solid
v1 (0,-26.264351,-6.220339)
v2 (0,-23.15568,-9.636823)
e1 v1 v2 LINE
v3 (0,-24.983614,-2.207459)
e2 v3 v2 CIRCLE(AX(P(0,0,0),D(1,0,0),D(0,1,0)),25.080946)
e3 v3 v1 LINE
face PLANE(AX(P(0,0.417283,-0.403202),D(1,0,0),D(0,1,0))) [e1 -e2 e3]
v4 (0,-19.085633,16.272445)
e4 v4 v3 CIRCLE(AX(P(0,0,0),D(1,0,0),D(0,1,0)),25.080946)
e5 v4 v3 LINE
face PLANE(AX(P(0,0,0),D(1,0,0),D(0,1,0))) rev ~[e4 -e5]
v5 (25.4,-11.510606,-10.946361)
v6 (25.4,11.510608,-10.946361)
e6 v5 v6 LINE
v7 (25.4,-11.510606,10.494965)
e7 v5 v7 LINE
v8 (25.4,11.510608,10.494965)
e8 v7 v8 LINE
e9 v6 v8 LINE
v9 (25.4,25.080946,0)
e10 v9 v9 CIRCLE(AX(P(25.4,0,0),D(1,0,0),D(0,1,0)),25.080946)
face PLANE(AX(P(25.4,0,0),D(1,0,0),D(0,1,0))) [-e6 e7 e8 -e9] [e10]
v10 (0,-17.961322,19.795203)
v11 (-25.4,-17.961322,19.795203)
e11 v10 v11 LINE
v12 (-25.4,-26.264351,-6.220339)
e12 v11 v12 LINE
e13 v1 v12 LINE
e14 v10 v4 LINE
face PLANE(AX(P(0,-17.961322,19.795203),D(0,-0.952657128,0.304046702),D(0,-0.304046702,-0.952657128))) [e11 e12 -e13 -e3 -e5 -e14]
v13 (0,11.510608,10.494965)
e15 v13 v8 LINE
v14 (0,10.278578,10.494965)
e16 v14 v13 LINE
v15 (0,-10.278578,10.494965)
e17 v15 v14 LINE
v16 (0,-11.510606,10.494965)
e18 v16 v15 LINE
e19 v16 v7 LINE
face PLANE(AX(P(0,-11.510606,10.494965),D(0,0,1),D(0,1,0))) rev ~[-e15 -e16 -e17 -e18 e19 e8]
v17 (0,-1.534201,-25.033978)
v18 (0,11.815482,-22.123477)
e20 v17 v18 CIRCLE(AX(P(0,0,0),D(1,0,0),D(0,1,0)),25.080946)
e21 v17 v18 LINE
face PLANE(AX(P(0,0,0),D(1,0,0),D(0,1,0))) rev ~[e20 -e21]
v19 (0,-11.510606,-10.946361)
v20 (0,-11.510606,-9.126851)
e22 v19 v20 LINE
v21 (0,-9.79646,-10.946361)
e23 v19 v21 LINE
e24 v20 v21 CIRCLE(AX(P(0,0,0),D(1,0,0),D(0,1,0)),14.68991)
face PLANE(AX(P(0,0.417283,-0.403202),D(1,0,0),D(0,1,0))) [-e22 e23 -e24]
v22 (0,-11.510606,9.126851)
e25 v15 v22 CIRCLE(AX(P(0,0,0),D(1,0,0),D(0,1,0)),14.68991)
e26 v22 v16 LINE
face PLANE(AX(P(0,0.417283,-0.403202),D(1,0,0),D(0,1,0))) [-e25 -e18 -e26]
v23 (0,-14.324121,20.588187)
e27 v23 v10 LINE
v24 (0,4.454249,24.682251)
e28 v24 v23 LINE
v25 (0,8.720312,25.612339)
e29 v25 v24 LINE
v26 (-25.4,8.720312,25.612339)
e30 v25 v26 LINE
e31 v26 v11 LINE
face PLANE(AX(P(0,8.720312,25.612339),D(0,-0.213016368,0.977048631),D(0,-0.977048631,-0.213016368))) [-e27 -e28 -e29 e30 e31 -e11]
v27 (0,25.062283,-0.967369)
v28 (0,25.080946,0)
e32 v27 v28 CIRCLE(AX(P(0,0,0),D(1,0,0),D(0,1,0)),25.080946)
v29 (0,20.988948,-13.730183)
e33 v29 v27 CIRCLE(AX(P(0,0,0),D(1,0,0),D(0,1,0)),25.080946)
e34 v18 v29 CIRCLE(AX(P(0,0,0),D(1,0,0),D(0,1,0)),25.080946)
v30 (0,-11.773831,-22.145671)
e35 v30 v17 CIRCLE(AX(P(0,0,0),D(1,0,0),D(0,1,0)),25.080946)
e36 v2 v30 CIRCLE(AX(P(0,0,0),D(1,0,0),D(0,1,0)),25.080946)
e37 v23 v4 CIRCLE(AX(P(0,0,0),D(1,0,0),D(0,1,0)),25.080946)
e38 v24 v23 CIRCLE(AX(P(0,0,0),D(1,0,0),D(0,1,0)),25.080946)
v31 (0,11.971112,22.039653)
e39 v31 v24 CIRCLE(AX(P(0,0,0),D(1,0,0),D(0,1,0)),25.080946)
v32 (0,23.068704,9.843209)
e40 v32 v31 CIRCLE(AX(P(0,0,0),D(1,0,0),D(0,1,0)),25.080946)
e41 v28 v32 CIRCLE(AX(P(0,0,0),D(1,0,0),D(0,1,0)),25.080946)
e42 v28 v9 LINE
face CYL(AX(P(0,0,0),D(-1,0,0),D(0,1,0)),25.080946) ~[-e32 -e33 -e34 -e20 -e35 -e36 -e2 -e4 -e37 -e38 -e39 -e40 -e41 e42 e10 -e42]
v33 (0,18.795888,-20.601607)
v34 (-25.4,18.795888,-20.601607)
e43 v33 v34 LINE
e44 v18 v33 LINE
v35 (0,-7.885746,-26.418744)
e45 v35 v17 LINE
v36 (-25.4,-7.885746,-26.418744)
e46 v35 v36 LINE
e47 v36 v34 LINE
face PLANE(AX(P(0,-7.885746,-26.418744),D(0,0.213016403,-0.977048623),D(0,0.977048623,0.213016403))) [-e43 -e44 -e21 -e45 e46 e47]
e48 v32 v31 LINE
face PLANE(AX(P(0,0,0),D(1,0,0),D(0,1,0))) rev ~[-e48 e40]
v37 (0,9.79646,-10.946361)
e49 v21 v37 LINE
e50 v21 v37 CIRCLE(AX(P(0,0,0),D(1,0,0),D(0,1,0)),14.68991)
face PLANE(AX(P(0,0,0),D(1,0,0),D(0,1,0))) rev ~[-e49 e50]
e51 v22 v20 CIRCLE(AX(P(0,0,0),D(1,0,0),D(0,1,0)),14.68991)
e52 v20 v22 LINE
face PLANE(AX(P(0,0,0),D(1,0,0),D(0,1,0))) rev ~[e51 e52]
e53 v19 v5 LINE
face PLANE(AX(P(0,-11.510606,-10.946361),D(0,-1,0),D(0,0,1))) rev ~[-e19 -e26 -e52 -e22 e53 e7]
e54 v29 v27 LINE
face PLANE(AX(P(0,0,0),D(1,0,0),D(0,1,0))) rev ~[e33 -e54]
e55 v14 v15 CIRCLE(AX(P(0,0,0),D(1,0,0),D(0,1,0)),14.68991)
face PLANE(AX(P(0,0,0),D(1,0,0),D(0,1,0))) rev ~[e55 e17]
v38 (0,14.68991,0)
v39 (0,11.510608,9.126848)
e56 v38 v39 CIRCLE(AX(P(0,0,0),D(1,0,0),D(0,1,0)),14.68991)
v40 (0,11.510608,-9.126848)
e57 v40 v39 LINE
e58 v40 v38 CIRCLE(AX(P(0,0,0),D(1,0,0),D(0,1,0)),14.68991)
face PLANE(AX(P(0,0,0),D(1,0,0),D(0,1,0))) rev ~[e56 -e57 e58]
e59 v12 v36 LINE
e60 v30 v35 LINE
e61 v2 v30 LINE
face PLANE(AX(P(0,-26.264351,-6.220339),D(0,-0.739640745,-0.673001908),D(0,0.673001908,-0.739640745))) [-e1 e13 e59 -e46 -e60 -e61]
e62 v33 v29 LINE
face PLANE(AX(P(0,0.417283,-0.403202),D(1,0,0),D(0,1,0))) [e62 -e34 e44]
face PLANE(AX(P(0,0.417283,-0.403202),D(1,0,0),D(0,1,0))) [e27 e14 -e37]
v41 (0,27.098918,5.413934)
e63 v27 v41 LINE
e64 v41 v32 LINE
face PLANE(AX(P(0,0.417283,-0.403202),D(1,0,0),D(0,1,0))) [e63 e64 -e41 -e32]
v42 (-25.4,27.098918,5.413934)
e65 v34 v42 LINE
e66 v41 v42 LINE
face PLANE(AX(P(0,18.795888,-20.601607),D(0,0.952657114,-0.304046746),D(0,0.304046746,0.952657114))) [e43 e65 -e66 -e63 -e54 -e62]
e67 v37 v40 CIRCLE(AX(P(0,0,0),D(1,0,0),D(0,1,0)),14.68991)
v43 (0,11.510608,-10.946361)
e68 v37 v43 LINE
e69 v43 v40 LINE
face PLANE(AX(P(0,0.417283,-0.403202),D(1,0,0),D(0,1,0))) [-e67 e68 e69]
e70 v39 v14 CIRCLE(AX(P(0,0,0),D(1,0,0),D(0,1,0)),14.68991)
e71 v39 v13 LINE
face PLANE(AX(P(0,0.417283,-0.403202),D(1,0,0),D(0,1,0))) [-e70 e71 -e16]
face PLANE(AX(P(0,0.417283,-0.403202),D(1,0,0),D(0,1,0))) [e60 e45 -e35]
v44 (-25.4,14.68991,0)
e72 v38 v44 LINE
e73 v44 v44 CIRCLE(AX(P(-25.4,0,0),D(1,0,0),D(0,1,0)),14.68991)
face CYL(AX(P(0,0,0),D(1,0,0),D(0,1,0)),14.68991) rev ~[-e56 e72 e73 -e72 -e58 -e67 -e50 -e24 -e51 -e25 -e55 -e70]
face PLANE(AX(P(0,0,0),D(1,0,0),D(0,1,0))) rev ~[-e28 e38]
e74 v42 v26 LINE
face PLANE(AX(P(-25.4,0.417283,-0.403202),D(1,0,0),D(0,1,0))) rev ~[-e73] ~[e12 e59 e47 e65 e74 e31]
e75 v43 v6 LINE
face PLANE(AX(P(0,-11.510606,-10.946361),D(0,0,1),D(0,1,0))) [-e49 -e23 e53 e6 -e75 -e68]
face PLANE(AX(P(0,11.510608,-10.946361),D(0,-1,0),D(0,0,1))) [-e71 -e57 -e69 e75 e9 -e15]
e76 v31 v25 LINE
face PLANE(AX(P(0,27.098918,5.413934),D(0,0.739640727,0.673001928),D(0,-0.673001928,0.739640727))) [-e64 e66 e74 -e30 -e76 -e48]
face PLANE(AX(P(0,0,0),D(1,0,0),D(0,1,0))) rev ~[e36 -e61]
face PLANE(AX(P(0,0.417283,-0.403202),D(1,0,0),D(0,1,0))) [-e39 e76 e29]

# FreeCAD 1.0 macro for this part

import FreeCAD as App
import Part
import Sketcher
from FreeCAD import Vector
Q = App.Units.Quantity

doc = App.newDocument("Part")
body = doc.addObject("PartDesign::Body", "Body")

# Sketch on YZ plane
sketch1 = doc.addObject("Sketcher::SketchObject", "Sketch")
body.addObject(sketch1)
sketch1.AttachmentSupport = (doc.YZ_Plane, [""])
sketch1.MapMode = "FlatFace"
sketch1.addGeometry(Part.Circle(Vector(0, 0, 0), Vector(0, 0, 1), 25.080946), False)
sketch1.addGeometry(Part.LineSegment(Vector(11.510608, -10.946361, 0), Vector(-11.510606, -10.946361, 0)), False)
sketch1.addGeometry(Part.LineSegment(Vector(-11.510606, -10.946361, 0), Vector(-11.510606, 10.494965, 0)), False)
sketch1.addGeometry(Part.LineSegment(Vector(-11.510606, 10.494965, 0), Vector(11.510608, 10.494965, 0)), False)
sketch1.addGeometry(Part.LineSegment(Vector(11.510608, 10.494965, 0), Vector(11.510608, -10.946361, 0)), False)
sketch1.addConstraint(Sketcher.Constraint("Coincident", 1, 2, 2, 1))
sketch1.addConstraint(Sketcher.Constraint("Coincident", 2, 2, 3, 1))
sketch1.addConstraint(Sketcher.Constraint("Coincident", 3, 2, 4, 1))
sketch1.addConstraint(Sketcher.Constraint("Coincident", 4, 2, 1, 1))
sketch1.addConstraint(Sketcher.Constraint("Horizontal", 1))
sketch1.addConstraint(Sketcher.Constraint("Vertical", 2))
sketch1.addConstraint(Sketcher.Constraint("Horizontal", 3))
sketch1.addConstraint(Sketcher.Constraint("Vertical", 4))
sketch1.addConstraint(Sketcher.Constraint("Coincident", 0, 3, -1, 1))
sketch1.addConstraint(Sketcher.Constraint("Diameter", 0, Q("50.161892 mm")))
sketch1.addConstraint(Sketcher.Constraint("DistanceX", 1, 2, 1, 1, Q("23.021214 mm")))
sketch1.addConstraint(Sketcher.Constraint("DistanceY", 2, 1, 2, 2, Q("21.441326 mm")))
sketch1.addConstraint(Sketcher.Constraint("DistanceY", 1, 2, -1, 1, Q("10.946361 mm")))
sketch1.addConstraint(Sketcher.Constraint("DistanceX", 1, 2, -1, 1, Q("11.510606 mm")))
pad1 = doc.addObject("PartDesign::Pad", "Pad")
body.addObject(pad1)
pad1.Profile = sketch1
pad1.Length = Q("1 in")

# Sketch on YZ plane
sketch2 = doc.addObject("Sketcher::SketchObject", "Sketch001")
body.addObject(sketch2)
sketch2.AttachmentSupport = (doc.YZ_Plane, [""])
sketch2.MapMode = "FlatFace"
sketch2.addGeometry(Part.LineSegment(Vector(8.720312, 25.612339, 0), Vector(-17.961322, 19.795203, 0)), False)
sketch2.addGeometry(Part.LineSegment(Vector(-17.961322, 19.795203, 0), Vector(-26.264351, -6.220339, 0)), False)
sketch2.addGeometry(Part.LineSegment(Vector(-26.264351, -6.220339, 0), Vector(-7.885746, -26.418744, 0)), False)
sketch2.addGeometry(Part.LineSegment(Vector(-7.885746, -26.418744, 0), Vector(18.795888, -20.601607, 0)), False)
sketch2.addGeometry(Part.LineSegment(Vector(18.795888, -20.601607, 0), Vector(27.098918, 5.413934, 0)), False)
sketch2.addGeometry(Part.LineSegment(Vector(27.098918, 5.413934, 0), Vector(8.720312, 25.612339, 0)), False)
sketch2.addGeometry(Part.Circle(Vector(0, 0, 0), Vector(0, 0, 1), 14.68991), False)
sketch2.addConstraint(Sketcher.Constraint("Coincident", 0, 2, 1, 1))
sketch2.addConstraint(Sketcher.Constraint("Coincident", 1, 2, 2, 1))
sketch2.addConstraint(Sketcher.Constraint("Coincident", 2, 2, 3, 1))
sketch2.addConstraint(Sketcher.Constraint("Coincident", 3, 2, 4, 1))
sketch2.addConstraint(Sketcher.Constraint("Coincident", 4, 2, 5, 1))
sketch2.addConstraint(Sketcher.Constraint("Coincident", 5, 2, 0, 1))
sketch2.addConstraint(Sketcher.Constraint("Coincident", 6, 3, -1, 1))
sketch2.addConstraint(Sketcher.Constraint("Parallel", 0, 3))
sketch2.addConstraint(Sketcher.Constraint("Parallel", 1, 4))
sketch2.addConstraint(Sketcher.Constraint("Parallel", 2, 5))
sketch2.addConstraint(Sketcher.Constraint("Equal", 0, 1))
sketch2.addConstraint(Sketcher.Constraint("Equal", 1, 2))
sketch2.addConstraint(Sketcher.Constraint("Equal", 2, 3))
sketch2.addConstraint(Sketcher.Constraint("Diameter", 6, Q("29.37982 mm")))
sketch2.addConstraint(Sketcher.Constraint("Distance", 0, Q("27.308399 mm")))
sketch2.addConstraint(Sketcher.Constraint("DistanceX", 0, 2, -1, 1, Q("17.961322 mm")))
sketch2.addConstraint(Sketcher.Constraint("DistanceX", 1, 2, -1, 1, Q("26.264351 mm")))
sketch2.addConstraint(Sketcher.Constraint("DistanceY", 1, 2, -1, 1, Q("6.220339 mm")))
sketch2.addConstraint(Sketcher.Constraint("DistanceX", -1, 1, 3, 2, Q("18.795888 mm")))
sketch2.addConstraint(Sketcher.Constraint("DistanceY", -1, 1, 5, 2, Q("25.612339 mm")))
pad2 = doc.addObject("PartDesign::Pad", "Pad001")
body.addObject(pad2)
pad2.Profile = sketch2
pad2.Length = Q("1 in")
pad2.Reversed = True

doc.recompute()
